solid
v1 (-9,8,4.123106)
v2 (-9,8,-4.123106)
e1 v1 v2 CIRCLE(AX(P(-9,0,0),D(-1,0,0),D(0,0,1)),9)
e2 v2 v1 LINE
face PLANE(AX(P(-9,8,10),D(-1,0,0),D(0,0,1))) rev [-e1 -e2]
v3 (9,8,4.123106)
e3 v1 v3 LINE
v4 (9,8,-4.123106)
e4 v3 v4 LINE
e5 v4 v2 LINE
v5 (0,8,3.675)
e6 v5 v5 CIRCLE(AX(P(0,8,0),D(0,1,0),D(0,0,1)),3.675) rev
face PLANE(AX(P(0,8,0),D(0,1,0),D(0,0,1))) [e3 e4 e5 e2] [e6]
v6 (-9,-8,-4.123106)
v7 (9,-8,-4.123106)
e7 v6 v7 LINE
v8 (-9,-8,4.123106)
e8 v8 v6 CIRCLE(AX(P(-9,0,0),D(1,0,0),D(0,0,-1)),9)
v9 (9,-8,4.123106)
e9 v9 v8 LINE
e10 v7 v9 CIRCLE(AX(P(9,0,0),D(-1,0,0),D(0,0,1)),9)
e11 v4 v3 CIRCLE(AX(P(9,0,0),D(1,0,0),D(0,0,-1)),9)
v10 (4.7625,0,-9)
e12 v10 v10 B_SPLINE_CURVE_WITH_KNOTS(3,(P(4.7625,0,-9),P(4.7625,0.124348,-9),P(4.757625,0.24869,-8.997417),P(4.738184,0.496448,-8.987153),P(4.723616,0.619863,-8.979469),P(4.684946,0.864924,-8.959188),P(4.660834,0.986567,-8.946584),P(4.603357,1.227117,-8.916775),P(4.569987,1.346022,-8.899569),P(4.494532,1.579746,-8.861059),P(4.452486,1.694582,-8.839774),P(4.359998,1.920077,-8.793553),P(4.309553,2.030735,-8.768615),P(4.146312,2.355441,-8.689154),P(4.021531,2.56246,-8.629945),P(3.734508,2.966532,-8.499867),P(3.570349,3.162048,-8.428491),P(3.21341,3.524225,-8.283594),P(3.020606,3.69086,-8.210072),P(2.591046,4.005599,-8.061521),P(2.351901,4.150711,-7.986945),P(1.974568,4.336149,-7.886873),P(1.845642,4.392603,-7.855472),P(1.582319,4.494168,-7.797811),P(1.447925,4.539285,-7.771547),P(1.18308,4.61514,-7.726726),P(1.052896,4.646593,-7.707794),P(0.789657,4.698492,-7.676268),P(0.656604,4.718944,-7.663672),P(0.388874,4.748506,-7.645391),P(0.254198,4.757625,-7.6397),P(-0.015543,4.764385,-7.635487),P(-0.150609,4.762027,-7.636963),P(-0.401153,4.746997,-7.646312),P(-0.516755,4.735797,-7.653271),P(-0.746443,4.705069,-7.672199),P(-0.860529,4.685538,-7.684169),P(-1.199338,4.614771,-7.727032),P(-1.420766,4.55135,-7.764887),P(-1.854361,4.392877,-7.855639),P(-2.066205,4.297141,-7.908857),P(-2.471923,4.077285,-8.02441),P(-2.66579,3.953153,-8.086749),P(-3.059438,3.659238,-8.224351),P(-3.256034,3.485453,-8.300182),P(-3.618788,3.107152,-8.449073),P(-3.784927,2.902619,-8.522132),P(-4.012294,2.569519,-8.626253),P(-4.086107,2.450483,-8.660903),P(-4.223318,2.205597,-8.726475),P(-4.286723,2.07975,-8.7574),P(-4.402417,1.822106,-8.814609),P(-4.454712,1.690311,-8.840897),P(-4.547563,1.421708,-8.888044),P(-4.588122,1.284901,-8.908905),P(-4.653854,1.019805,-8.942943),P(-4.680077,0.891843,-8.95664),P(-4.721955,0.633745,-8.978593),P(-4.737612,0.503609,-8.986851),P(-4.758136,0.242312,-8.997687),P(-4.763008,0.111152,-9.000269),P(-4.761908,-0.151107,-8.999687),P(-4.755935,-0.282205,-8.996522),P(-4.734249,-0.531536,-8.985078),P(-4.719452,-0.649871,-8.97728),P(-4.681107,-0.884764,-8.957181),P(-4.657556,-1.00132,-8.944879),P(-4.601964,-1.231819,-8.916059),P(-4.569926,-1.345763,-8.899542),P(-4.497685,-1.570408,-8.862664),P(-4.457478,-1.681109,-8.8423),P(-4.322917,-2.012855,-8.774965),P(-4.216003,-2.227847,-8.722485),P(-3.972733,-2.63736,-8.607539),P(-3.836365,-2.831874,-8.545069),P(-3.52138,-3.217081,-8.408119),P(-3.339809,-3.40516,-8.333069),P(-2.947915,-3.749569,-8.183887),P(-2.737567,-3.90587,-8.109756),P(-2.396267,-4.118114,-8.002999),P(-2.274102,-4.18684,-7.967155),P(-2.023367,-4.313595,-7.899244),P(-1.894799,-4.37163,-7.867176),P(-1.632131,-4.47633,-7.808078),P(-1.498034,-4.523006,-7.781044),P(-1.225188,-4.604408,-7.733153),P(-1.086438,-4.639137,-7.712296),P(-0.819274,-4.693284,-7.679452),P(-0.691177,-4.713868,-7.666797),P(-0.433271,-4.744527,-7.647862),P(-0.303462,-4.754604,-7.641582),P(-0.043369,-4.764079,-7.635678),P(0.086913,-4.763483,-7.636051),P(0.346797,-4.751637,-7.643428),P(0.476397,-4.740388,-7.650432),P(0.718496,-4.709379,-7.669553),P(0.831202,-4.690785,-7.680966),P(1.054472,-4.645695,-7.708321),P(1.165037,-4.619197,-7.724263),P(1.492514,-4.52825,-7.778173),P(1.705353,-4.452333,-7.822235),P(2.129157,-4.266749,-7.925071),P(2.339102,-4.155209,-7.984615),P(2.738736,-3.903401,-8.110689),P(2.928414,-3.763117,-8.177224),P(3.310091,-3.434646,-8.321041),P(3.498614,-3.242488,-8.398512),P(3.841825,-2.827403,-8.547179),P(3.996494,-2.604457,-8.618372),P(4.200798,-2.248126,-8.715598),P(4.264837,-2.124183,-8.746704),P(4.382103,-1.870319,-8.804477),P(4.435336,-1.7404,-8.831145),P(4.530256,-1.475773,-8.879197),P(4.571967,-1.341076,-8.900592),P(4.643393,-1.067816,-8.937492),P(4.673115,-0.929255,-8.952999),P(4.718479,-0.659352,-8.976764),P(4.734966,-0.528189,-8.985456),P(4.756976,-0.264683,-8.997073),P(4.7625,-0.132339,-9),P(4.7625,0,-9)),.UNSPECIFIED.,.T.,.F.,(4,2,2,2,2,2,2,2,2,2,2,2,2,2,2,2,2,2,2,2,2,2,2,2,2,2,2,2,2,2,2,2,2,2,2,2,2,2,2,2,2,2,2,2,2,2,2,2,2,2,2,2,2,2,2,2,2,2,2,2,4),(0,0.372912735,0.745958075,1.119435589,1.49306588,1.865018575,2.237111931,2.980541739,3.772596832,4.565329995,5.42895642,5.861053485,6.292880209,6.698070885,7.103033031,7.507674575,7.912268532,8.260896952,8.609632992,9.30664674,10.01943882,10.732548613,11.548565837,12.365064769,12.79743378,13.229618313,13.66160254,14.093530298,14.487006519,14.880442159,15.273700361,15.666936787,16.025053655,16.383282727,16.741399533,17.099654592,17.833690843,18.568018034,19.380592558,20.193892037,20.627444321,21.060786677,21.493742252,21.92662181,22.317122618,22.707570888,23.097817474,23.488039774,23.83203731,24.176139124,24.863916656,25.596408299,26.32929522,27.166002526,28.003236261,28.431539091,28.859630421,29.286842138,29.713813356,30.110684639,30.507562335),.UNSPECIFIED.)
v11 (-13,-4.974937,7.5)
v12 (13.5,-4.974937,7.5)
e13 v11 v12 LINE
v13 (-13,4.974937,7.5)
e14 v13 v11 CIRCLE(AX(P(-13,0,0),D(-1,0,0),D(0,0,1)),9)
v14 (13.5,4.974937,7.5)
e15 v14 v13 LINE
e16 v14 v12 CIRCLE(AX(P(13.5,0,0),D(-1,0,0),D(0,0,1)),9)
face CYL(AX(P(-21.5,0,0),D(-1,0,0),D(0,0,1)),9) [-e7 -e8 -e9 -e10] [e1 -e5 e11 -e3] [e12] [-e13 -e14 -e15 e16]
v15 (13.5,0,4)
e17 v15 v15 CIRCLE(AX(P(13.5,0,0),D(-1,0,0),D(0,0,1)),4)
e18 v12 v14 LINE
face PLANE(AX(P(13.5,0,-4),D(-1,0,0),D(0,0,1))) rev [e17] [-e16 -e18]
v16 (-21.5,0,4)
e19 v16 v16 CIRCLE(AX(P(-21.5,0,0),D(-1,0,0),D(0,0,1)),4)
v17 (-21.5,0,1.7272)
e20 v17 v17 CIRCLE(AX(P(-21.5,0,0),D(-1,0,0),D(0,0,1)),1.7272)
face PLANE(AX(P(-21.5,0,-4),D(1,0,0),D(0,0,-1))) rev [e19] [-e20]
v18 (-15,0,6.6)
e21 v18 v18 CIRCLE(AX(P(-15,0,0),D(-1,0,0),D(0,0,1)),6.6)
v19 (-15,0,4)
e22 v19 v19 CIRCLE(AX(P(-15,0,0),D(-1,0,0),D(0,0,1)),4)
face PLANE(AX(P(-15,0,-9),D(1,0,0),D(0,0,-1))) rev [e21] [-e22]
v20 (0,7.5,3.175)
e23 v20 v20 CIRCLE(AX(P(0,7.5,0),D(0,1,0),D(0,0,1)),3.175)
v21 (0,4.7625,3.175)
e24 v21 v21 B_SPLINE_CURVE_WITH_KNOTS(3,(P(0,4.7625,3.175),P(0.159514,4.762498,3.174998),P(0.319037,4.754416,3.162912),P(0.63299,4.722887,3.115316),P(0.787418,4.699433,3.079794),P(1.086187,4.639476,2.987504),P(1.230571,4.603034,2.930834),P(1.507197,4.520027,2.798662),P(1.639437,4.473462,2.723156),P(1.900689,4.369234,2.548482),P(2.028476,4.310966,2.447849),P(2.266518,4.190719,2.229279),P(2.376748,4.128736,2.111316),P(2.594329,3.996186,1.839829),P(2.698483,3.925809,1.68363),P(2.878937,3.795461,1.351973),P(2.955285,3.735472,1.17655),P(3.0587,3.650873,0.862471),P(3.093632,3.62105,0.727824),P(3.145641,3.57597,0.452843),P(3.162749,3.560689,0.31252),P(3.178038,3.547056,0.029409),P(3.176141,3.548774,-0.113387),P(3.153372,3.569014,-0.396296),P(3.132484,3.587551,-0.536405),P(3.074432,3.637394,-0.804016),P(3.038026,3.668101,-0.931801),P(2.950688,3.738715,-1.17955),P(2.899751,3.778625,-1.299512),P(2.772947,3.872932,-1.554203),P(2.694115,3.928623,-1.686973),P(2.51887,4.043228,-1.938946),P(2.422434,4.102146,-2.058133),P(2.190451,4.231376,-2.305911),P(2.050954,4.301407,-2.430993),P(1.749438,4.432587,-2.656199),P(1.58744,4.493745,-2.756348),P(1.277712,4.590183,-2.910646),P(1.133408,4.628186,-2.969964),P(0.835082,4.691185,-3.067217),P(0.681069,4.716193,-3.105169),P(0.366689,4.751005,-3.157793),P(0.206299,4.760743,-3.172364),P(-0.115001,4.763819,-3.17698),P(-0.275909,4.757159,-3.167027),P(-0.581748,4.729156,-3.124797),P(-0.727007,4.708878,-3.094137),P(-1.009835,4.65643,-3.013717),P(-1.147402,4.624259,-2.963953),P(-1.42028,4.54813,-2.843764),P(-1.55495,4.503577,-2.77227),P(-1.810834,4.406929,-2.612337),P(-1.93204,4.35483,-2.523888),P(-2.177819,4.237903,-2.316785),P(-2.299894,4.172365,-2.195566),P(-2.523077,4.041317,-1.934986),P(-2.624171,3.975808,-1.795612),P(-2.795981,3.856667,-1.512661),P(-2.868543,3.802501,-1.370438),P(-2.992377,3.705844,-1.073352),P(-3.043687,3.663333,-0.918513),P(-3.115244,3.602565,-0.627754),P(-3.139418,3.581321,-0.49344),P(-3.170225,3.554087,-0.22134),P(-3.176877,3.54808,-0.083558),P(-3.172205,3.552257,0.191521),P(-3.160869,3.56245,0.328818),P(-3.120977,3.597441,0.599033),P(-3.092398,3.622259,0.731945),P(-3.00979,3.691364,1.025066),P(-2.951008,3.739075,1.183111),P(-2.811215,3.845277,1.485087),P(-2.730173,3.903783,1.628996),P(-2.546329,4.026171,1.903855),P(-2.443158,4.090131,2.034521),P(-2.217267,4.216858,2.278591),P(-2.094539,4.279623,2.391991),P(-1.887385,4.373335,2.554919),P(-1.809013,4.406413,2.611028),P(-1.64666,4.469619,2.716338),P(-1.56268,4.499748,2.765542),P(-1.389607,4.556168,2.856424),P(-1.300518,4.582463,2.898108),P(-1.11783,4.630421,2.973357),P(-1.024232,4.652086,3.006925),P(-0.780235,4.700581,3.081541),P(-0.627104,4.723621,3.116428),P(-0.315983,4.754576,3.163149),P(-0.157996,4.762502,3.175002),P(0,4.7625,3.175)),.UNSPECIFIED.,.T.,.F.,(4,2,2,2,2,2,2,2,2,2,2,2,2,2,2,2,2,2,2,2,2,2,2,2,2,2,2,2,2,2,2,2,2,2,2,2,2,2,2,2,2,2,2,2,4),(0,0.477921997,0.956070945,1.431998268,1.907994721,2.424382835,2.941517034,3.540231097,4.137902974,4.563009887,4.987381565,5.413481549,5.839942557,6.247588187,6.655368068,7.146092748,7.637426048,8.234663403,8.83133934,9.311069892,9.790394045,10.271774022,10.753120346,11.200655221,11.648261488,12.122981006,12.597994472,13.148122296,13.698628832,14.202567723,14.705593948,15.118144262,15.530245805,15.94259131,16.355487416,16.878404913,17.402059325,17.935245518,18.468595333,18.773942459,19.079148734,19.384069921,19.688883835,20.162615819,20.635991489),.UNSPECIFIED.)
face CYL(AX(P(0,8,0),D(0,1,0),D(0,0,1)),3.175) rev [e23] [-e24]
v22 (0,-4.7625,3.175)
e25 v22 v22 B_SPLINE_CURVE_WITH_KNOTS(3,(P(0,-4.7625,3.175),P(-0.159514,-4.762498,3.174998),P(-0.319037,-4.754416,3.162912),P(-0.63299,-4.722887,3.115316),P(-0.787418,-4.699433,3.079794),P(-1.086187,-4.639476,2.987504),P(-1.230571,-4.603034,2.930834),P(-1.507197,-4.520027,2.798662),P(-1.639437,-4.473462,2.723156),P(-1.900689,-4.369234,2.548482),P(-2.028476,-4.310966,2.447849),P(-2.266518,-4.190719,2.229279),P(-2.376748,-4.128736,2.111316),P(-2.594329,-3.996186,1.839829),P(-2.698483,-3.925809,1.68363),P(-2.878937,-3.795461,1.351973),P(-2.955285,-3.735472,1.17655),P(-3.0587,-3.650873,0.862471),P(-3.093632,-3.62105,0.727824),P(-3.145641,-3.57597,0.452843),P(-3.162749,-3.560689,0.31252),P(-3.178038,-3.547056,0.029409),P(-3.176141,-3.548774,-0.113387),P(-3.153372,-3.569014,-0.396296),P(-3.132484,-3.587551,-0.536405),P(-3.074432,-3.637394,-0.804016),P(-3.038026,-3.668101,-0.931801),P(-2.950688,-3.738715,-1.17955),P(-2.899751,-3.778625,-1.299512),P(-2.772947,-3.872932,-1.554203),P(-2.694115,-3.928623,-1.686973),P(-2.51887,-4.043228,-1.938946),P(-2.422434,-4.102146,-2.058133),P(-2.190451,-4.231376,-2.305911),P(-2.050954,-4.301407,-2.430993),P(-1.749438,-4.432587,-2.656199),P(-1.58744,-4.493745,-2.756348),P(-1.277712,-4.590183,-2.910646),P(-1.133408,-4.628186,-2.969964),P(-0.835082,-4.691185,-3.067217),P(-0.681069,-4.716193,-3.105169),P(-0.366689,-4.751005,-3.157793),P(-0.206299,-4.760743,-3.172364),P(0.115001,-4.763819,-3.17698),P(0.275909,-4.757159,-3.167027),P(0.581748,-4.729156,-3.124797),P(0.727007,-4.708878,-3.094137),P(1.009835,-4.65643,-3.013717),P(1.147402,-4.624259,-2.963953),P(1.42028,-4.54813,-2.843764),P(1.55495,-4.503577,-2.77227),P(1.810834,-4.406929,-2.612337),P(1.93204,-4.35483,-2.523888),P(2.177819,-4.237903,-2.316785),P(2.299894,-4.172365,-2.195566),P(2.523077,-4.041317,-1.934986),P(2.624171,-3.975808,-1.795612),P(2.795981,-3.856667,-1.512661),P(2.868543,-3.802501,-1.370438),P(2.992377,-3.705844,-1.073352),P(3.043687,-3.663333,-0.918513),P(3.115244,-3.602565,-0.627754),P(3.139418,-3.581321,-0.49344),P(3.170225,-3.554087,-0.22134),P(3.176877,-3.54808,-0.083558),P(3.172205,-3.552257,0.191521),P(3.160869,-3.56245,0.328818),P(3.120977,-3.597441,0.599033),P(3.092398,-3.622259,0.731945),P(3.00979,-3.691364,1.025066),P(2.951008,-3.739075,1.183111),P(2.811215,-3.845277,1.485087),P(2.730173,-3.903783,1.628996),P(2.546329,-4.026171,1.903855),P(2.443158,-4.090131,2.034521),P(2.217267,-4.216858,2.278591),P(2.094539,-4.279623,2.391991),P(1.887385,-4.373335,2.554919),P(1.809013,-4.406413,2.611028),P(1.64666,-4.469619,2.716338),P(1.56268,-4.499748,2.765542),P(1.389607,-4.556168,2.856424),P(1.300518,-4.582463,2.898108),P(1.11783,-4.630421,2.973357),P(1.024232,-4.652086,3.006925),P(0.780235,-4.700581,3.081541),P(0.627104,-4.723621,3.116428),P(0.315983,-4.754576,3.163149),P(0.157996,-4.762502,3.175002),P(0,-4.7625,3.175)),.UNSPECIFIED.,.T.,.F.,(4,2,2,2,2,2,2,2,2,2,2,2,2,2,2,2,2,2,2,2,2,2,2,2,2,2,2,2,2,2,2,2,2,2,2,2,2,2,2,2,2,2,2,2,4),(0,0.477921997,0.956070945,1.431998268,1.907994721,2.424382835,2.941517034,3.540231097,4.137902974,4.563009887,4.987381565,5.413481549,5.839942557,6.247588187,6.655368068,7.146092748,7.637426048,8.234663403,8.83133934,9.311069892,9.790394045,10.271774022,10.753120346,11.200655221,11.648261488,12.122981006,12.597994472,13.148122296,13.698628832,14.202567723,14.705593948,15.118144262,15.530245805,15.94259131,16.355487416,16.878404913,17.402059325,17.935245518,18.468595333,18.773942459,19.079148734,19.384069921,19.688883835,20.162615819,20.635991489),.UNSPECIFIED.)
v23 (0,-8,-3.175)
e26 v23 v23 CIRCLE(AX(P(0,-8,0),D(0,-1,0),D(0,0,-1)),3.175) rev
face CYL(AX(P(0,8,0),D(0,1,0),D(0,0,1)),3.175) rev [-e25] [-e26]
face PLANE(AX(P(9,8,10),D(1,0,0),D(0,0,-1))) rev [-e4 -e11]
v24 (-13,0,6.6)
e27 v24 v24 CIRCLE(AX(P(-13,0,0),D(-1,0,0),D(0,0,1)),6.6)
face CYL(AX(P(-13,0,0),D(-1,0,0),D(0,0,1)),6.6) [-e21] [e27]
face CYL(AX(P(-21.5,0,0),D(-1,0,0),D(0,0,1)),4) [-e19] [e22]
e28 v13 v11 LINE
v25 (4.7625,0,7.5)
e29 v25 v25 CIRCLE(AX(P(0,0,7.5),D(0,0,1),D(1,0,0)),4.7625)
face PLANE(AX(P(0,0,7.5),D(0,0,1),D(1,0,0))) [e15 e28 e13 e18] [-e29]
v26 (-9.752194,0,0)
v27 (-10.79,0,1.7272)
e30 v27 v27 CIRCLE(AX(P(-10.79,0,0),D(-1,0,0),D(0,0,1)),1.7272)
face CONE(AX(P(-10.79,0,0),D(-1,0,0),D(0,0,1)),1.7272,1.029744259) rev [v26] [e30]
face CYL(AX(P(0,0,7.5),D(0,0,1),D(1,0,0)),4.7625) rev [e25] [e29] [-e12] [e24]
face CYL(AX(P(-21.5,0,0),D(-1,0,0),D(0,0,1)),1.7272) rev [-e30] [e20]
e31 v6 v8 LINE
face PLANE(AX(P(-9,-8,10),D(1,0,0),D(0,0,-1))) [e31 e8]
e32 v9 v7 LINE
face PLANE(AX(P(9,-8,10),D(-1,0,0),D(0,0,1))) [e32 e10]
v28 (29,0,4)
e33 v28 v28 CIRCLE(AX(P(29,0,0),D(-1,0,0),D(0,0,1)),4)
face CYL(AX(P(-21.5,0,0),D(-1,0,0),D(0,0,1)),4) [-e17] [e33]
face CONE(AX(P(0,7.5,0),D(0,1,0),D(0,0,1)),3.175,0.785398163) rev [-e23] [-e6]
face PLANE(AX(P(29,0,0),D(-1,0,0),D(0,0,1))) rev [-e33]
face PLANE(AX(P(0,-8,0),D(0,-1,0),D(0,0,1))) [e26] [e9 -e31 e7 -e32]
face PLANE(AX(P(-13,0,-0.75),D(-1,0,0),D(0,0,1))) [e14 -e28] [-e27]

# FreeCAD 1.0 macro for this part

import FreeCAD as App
import Part
import Sketcher
from FreeCAD import Vector
Q = App.Units.Quantity


def edges_at(feature, points):
    """Names of the edges that pass closest to the given points."""
    edges = feature.Shape.Edges
    near = lambda p: min(range(len(edges)), key=lambda i: edges[i].distToShape(Part.Vertex(*p))[0])
    return sorted({f"Edge{near(p) + 1}" for p in points})


def add_polygon(sketch, points):
    """Adds a closed chain of lines whose ends are joined by coincident constraints."""
    first, n = sketch.GeometryCount, len(points)
    for a, b in zip(points, points[1:] + points[:1]):
        sketch.addGeometry(Part.LineSegment(App.Vector(*a, 0), App.Vector(*b, 0)), False)
    for i in range(n):
        sketch.addConstraint(Sketcher.Constraint("Coincident", first + i, 2, first + (i + 1) % n, 1))

doc = App.newDocument("Part")
body = doc.addObject("PartDesign::Body", "Body")

# Sketch on XZ plane
sketch1 = body.newObject("Sketcher::SketchObject", "Sketch")
sketch1.AttachmentSupport = (doc.getObject("XZ_Plane"), [""])
sketch1.MapMode = "FlatFace"
add_polygon(sketch1, [(-21.5, 0), (29, 0), (29, -4), (13.5, -4), (13.5, -9), (-15, -9), (-15, -4), (-21.5, -4)])  # lines 0-7
sketch1.addConstraint([
    Sketcher.Constraint("Horizontal", 0),
    Sketcher.Constraint("Vertical", 1),
    Sketcher.Constraint("Horizontal", 2),
    Sketcher.Constraint("Vertical", 3),
    Sketcher.Constraint("Horizontal", 4),
    Sketcher.Constraint("Vertical", 5),
    Sketcher.Constraint("Horizontal", 6),
    Sketcher.Constraint("Vertical", 7),
    Sketcher.Constraint("PointOnObject", 0, 2, -1),
    Sketcher.Constraint("Horizontal", 2, 2, 5, 2),
    Sketcher.Constraint("DistanceY", 1, 2, 1, 1, Q("4 mm")),
    Sketcher.Constraint("DistanceY", 3, 2, 3, 1, Q("5 mm")),
    Sketcher.Constraint("DistanceX", 0, 1, 0, 2, Q("50.5 mm")),
    Sketcher.Constraint("DistanceX", 2, 2, 2, 1, Q("15.5 mm")),
    Sketcher.Constraint("DistanceX", 4, 2, 4, 1, Q("28.5 mm")),
    Sketcher.Constraint("DistanceX", -1, 1, 0, 2, Q("29 mm")),
])
revolution = body.newObject("PartDesign::Revolution", "Revolution")
revolution.Profile = sketch1
revolution.ReferenceAxis = (sketch1, ["H_Axis"])
revolution.Angle = 360

# Sketch on XY plane
sketch2 = body.newObject("Sketcher::SketchObject", "Sketch001")
sketch2.AttachmentSupport = (doc.getObject("XY_Plane"), [""])
sketch2.MapMode = "FlatFace"
sketch2.AttachmentOffset = App.Placement(Vector(0, 0, 9), App.Rotation())
add_polygon(sketch2, [(-15, 6.35), (-15, -6.35), (15, -6.35), (15, 6.35)])  # lines 0-3
sketch2.addConstraint([
    Sketcher.Constraint("Vertical", 0),
    Sketcher.Constraint("Horizontal", 1),
    Sketcher.Constraint("Vertical", 2),
    Sketcher.Constraint("Horizontal", 3),
    Sketcher.Constraint("Symmetric", 0, 2, 2, 2, -1, 1),
    Sketcher.Constraint("DistanceX", 1, 1, 1, 2, Q("30 mm")),
    Sketcher.Constraint("DistanceY", 0, 2, 0, 1, Q("12.7 mm")),
])
pocket1 = body.newObject("PartDesign::Pocket", "Pocket")
pocket1.Profile = sketch2
pocket1.Length = 1.5

# Sketch on YZ plane
sketch3 = body.newObject("Sketcher::SketchObject", "Sketch002")
sketch3.AttachmentSupport = (doc.getObject("YZ_Plane"), [""])
sketch3.MapMode = "FlatFace"
sketch3.AttachmentOffset = App.Placement(Vector(0, 0, -21.5), App.Rotation())
sketch3.addGeometry(Part.Circle(Vector(0, 0, 0), Vector(0, 0, 1), 1.7272), False)
sketch3.addConstraint([
    Sketcher.Constraint("Coincident", 0, 3, -1, 1),
    Sketcher.Constraint("Diameter", 0, Q("3.4544 mm")),
])
doc.recompute()
hole = body.newObject("PartDesign::Hole", "Hole")
hole.Profile = sketch3
hole.ThreadType = "None"
hole.Diameter = 3.4544
hole.DepthType = "Dimension"
hole.Depth = 10.71
hole.DrillPoint = "Angled"
hole.DrillPointAngle = 118
hole.Reversed = True

# Sketch on YZ plane
sketch4 = body.newObject("Sketcher::SketchObject", "Sketch003")
sketch4.AttachmentSupport = (doc.getObject("YZ_Plane"), [""])
sketch4.MapMode = "FlatFace"
sketch4.AttachmentOffset = App.Placement(Vector(0, 0, -15), App.Rotation())
add_polygon(sketch4, [(15.609, -15.609), (-15.609, -15.609), (-15.609, 14.109), (15.609, 14.109)])  # lines 0-3
sketch4.addGeometry(Part.Circle(Vector(0, 0, 0), Vector(0, 0, 1), 6.6), False)  # 4
sketch4.addConstraint([
    Sketcher.Constraint("Horizontal", 0),
    Sketcher.Constraint("Vertical", 1),
    Sketcher.Constraint("Horizontal", 2),
    Sketcher.Constraint("Vertical", 3),
    Sketcher.Constraint("Coincident", 4, 3, -1, 1),
    Sketcher.Constraint("Diameter", 4, Q("13.2 mm")),
    Sketcher.Constraint("DistanceX", 0, 2, 0, 1, Q("31.218 mm")),
    Sketcher.Constraint("DistanceY", 1, 1, 1, 2, Q("29.718 mm")),
    Sketcher.Constraint("DistanceX", 0, 2, -1, 1, Q("15.609 mm")),
    Sketcher.Constraint("DistanceY", 0, 2, -1, 1, Q("15.609 mm")),
])
pocket2 = body.newObject("PartDesign::Pocket", "Pocket001")
pocket2.Profile = sketch4
pocket2.Length = 2
pocket2.Reversed = True

# Sketch on XY plane
sketch5 = body.newObject("Sketcher::SketchObject", "Sketch004")
sketch5.AttachmentSupport = (doc.getObject("XY_Plane"), [""])
sketch5.MapMode = "FlatFace"
sketch5.AttachmentOffset = App.Placement(Vector(0, 0, 7.5), App.Rotation())
sketch5.addGeometry(Part.Circle(Vector(0, 0, 0), Vector(0, 0, 1), 4.7625), False)
sketch5.addConstraint([
    Sketcher.Constraint("Coincident", 0, 3, -1, 1),
    Sketcher.Constraint("Diameter", 0, Q("9.525 mm")),
])
doc.recompute()
hole2 = body.newObject("PartDesign::Hole", "Hole001")
hole2.Profile = sketch5
hole2.ThreadType = "None"
hole2.Diameter = 9.525
hole2.DepthType = "ThroughAll"

# Sketch on XZ plane
sketch6 = body.newObject("Sketcher::SketchObject", "Sketch005")
sketch6.AttachmentSupport = (doc.getObject("XZ_Plane"), [""])
sketch6.MapMode = "FlatFace"
sketch6.AttachmentOffset = App.Placement(Vector(0, 0, -9), App.Rotation())
add_polygon(sketch6, [(-9, -10), (-9, 10), (9, 10), (9, -10)])  # lines 0-3
sketch6.addConstraint([
    Sketcher.Constraint("Vertical", 0),
    Sketcher.Constraint("Horizontal", 1),
    Sketcher.Constraint("Vertical", 2),
    Sketcher.Constraint("Horizontal", 3),
    Sketcher.Constraint("Symmetric", 0, 2, 2, 2, -1, 1),
    Sketcher.Constraint("DistanceX", 1, 1, 1, 2, Q("18 mm")),
    Sketcher.Constraint("DistanceY", 0, 1, 0, 2, Q("20 mm")),
])
pocket3 = body.newObject("PartDesign::Pocket", "Pocket002")
pocket3.Profile = sketch6
pocket3.Length = 1
pocket3.Reversed = True

# Sketch on XZ plane
sketch7 = body.newObject("Sketcher::SketchObject", "Sketch006")
sketch7.AttachmentSupport = (doc.getObject("XZ_Plane"), [""])
sketch7.MapMode = "FlatFace"
sketch7.AttachmentOffset = App.Placement(Vector(0, 0, -8), App.Rotation())
sketch7.addGeometry(Part.Circle(Vector(0, 0, 0), Vector(0, 0, 1), 3.175), False)
sketch7.addConstraint([
    Sketcher.Constraint("Coincident", 0, 3, -1, 1),
    Sketcher.Constraint("Diameter", 0, Q("6.35 mm")),
])
doc.recompute()
hole3 = body.newObject("PartDesign::Hole", "Hole002")
hole3.Profile = sketch7
hole3.ThreadType = "None"
hole3.Diameter = 6.35
hole3.DepthType = "ThroughAll"
hole3.Reversed = True
doc.recompute()

mirrored = body.newObject("PartDesign::Mirrored", "Mirrored")
mirrored.Originals = [pocket3]
mirrored.MirrorPlane = (doc.getObject("XZ_Plane"), [""])
body.Tip = mirrored
doc.recompute()

chamfer = body.newObject("PartDesign::Chamfer", "Chamfer")
chamfer.Base = (mirrored, edges_at(mirrored, [(3.175, 8, 0)]))
chamfer.Size = 0.5

doc.recompute()
